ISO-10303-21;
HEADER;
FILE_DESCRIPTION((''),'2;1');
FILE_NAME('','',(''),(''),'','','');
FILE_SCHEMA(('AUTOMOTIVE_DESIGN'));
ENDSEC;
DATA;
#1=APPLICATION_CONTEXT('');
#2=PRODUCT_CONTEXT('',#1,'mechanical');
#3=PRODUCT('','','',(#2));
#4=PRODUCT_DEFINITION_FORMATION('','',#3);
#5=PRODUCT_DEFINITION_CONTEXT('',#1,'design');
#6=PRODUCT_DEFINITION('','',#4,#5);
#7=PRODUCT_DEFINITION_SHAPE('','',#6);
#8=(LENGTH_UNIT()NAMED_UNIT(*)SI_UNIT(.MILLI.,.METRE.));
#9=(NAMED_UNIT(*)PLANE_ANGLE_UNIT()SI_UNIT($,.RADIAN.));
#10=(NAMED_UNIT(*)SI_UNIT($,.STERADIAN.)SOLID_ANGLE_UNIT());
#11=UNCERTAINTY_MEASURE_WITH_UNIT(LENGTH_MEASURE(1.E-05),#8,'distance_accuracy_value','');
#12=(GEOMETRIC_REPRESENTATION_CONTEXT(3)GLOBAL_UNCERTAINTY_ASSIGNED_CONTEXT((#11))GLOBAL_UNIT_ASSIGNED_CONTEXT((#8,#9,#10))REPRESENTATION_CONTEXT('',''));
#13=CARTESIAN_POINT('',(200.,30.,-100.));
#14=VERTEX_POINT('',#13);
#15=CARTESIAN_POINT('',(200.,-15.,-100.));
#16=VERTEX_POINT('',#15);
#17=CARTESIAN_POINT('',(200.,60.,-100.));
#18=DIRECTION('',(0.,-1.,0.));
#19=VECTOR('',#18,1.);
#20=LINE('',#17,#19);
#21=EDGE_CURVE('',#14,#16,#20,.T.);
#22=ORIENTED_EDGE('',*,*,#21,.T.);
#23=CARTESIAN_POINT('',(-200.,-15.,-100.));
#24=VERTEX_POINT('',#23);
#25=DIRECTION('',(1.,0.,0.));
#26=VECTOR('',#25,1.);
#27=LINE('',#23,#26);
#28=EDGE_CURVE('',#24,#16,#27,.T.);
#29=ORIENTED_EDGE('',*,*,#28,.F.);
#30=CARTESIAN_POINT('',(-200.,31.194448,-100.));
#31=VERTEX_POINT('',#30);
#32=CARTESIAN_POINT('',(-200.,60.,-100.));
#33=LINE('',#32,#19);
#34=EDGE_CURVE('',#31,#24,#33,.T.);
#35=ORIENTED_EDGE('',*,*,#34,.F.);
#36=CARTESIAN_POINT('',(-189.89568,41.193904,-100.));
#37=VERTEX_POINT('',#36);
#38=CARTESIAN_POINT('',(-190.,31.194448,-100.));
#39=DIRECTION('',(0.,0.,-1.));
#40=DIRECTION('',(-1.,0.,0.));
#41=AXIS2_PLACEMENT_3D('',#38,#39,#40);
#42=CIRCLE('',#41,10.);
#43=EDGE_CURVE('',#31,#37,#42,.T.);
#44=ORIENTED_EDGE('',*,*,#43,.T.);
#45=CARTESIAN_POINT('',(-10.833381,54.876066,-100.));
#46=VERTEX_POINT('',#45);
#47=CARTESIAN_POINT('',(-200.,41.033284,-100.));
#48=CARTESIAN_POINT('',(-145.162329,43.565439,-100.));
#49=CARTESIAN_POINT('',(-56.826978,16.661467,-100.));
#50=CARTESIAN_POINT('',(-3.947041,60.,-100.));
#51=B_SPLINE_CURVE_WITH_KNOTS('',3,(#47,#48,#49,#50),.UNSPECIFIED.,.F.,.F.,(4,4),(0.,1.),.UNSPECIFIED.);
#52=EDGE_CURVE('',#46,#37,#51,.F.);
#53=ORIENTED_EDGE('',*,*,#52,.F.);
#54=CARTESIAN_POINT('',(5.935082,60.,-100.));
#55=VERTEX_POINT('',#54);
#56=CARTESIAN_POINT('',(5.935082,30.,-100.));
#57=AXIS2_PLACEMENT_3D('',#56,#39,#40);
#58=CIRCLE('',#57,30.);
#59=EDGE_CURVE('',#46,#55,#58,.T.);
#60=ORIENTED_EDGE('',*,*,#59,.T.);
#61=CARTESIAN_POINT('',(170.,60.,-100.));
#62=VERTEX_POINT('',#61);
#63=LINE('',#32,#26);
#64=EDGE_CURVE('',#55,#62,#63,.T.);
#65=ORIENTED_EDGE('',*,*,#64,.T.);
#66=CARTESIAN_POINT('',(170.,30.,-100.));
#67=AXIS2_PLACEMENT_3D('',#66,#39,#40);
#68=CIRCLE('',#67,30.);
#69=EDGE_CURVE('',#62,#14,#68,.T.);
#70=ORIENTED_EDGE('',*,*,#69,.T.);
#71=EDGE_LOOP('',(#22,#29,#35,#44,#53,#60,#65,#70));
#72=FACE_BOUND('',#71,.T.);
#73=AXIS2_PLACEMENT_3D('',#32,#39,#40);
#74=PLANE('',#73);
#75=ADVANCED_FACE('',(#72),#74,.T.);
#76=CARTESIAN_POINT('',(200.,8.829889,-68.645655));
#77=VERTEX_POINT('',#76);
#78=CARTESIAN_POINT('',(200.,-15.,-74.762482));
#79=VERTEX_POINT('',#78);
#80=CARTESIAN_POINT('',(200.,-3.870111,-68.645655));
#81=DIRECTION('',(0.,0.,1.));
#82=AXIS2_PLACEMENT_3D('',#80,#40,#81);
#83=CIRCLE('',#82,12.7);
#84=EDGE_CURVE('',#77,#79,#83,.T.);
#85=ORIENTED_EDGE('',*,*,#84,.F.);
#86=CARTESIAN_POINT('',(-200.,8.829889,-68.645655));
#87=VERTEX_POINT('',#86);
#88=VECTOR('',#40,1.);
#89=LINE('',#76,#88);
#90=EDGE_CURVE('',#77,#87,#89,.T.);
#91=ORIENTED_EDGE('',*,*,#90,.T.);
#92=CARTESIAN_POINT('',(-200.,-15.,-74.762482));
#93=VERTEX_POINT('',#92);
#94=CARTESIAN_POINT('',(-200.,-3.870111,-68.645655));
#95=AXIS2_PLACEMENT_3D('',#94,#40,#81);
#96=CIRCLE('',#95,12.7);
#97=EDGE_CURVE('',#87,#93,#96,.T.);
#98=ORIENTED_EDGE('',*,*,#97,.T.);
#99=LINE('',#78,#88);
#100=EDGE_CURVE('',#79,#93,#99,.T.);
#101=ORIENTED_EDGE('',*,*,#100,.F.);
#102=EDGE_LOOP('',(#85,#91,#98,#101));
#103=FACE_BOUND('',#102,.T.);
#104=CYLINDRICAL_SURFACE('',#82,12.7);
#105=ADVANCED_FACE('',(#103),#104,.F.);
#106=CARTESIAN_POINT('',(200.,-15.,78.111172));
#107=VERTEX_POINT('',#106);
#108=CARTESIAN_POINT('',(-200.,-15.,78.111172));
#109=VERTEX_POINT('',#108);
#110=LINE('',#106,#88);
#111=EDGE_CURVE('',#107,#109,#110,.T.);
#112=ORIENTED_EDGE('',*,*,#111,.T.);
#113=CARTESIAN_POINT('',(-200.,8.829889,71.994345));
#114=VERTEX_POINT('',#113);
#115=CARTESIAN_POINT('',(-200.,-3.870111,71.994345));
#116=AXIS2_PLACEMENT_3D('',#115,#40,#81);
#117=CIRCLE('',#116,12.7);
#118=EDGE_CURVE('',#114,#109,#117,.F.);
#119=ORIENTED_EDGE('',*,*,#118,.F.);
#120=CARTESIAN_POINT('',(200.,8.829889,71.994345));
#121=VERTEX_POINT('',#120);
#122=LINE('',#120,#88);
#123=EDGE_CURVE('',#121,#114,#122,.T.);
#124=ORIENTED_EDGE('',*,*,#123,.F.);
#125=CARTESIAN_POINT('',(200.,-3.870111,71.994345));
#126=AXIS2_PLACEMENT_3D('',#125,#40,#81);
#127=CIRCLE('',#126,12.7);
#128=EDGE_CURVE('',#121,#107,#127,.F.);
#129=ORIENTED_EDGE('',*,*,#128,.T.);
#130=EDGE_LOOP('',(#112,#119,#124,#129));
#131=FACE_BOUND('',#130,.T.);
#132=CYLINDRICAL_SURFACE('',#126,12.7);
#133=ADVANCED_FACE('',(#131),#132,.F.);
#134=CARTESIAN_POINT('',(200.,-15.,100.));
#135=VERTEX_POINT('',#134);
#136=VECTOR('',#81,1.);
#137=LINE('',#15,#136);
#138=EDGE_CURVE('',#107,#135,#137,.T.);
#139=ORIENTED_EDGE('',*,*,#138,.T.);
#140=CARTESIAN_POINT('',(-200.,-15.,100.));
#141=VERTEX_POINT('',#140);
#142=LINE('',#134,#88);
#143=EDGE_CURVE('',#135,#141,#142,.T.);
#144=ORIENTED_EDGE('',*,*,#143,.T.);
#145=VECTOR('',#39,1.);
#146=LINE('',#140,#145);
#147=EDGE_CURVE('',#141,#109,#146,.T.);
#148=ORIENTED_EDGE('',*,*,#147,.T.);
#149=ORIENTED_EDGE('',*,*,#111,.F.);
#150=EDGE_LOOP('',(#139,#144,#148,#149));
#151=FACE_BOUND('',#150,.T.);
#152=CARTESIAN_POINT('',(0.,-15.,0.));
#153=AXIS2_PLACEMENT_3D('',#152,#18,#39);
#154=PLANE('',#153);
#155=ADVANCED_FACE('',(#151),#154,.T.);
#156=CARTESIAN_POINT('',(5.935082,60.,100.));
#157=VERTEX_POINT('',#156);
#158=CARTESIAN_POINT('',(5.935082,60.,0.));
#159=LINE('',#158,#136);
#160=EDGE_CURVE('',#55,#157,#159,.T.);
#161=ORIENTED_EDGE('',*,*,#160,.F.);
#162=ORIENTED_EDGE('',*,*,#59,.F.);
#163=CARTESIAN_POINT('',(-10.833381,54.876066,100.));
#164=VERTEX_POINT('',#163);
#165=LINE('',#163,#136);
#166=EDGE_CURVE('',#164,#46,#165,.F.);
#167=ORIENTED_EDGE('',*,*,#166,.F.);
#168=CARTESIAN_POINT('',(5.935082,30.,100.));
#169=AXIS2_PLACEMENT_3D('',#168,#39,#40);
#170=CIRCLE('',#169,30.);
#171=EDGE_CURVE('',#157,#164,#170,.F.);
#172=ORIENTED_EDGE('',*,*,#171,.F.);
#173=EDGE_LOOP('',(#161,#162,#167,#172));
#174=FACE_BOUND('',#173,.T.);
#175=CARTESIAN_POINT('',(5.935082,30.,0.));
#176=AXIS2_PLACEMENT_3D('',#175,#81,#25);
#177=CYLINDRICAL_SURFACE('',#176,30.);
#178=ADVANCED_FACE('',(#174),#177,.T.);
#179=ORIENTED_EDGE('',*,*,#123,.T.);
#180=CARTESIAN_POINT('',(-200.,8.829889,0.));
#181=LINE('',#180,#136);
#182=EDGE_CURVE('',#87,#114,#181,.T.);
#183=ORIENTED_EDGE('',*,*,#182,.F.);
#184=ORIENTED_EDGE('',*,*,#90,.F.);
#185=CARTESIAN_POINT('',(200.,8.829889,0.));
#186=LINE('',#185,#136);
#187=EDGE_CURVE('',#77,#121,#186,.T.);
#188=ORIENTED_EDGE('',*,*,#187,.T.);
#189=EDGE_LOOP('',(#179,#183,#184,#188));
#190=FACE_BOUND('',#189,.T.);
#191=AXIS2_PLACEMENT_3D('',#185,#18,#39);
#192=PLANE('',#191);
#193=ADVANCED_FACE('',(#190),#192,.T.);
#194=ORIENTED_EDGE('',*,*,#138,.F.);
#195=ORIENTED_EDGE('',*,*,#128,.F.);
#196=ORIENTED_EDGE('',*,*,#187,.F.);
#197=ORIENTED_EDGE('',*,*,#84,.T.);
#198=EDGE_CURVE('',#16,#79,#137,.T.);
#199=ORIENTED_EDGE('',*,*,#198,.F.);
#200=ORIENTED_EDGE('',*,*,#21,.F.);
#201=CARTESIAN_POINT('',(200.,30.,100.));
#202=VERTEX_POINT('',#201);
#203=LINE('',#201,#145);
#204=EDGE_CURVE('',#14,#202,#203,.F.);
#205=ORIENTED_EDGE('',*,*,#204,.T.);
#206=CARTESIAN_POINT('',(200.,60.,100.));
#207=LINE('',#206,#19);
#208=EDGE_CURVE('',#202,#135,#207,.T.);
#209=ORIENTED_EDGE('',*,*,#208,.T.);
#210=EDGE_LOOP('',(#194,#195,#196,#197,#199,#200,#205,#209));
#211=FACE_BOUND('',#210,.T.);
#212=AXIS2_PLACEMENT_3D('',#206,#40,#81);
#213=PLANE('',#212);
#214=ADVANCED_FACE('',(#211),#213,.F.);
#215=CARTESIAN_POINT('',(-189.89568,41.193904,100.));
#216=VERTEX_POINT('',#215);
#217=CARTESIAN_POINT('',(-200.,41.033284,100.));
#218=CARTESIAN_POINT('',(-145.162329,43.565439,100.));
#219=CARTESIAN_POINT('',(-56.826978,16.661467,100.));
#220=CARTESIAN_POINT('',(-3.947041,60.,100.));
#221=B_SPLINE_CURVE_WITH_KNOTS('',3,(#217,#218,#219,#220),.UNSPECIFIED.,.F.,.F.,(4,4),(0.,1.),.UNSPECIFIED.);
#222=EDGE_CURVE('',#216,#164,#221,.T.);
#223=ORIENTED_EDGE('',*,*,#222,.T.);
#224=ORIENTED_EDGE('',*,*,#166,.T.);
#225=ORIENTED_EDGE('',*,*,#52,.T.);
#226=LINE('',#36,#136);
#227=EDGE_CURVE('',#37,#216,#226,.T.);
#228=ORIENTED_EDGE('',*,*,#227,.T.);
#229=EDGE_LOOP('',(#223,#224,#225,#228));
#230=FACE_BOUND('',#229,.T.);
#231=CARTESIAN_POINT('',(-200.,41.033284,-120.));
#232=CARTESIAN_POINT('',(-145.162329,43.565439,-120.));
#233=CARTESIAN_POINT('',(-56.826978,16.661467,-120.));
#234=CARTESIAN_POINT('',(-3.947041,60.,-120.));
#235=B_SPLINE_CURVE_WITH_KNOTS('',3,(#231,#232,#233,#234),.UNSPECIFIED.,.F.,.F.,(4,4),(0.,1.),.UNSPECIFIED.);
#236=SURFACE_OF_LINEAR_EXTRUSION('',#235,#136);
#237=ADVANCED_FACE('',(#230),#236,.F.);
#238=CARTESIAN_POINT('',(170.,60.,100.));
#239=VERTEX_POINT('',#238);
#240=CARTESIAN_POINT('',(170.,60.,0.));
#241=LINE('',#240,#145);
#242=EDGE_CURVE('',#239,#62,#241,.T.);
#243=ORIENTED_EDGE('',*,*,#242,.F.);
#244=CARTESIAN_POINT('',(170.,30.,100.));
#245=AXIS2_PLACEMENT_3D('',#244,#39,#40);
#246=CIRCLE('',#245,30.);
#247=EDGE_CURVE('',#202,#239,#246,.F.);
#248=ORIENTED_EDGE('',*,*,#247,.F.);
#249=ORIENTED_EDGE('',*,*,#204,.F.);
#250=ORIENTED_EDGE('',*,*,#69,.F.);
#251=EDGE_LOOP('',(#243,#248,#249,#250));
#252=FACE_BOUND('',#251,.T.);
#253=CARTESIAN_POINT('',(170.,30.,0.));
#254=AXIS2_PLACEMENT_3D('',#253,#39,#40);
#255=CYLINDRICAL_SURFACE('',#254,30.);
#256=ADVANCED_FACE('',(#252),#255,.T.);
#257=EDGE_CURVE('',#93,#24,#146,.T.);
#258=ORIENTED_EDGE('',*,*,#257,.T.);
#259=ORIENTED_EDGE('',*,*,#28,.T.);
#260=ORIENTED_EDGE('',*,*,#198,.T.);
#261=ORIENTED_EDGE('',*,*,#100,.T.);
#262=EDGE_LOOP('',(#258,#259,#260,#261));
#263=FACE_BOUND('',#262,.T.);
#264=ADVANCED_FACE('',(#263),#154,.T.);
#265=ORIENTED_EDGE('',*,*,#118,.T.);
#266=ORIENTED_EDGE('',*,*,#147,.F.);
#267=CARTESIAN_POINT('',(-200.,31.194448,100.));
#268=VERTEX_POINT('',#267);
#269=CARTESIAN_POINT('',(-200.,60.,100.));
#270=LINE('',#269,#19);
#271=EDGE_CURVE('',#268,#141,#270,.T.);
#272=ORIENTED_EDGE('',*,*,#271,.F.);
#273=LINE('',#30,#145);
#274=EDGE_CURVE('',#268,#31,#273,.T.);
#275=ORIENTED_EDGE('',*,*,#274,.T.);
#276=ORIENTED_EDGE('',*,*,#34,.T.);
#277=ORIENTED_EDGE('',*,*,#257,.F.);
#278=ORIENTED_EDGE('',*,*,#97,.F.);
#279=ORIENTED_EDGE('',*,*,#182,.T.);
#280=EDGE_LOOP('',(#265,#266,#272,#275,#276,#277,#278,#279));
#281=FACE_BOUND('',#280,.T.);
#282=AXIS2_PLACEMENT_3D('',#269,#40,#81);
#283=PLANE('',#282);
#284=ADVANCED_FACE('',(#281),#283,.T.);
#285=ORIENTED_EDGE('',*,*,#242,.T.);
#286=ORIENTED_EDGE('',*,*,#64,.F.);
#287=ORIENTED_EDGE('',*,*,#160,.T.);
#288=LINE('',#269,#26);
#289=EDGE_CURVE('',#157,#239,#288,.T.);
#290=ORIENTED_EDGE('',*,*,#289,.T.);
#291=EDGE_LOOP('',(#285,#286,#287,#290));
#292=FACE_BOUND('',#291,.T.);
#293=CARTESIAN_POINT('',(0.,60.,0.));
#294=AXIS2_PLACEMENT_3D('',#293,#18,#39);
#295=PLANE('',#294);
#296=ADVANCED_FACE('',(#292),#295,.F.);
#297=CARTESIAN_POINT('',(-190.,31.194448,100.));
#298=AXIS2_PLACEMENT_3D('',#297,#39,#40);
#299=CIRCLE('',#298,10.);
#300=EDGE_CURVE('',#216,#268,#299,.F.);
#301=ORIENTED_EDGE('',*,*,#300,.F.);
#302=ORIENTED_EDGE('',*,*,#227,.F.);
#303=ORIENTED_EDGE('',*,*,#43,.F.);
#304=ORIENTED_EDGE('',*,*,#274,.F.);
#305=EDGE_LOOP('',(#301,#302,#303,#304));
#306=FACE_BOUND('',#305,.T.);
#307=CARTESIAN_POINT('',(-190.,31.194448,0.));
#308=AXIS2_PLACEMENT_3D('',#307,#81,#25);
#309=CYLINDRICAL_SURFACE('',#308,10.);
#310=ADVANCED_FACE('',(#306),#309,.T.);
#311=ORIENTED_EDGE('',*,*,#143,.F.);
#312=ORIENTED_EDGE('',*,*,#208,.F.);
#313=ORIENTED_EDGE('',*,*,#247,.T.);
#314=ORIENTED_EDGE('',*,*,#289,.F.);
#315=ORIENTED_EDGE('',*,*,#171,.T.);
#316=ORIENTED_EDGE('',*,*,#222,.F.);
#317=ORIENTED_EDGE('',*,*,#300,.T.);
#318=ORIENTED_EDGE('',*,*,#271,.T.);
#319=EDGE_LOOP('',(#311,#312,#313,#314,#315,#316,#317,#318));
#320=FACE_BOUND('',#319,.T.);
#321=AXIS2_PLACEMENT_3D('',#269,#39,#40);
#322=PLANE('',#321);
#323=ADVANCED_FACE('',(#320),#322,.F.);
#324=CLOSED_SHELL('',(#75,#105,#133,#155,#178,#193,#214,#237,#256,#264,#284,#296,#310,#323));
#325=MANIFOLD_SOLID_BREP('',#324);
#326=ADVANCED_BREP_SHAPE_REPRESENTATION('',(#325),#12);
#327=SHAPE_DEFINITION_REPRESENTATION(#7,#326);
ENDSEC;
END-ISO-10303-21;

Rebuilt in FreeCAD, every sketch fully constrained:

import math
import FreeCAD as App
import Part
import Sketcher


def edges_at(feature, points):
    """Names of the edges that pass closest to the given points."""
    edges = feature.Shape.Edges
    near = lambda p: min(range(len(edges)), key=lambda i: edges[i].distToShape(Part.Vertex(*p))[0])
    return sorted({f"Edge{near(p) + 1}" for p in points})

doc = App.newDocument("Part")
body = doc.addObject("PartDesign::Body", "Body")

sketch1 = body.newObject("Sketcher::SketchObject", "Sketch")
sketch1.AttachmentSupport = (doc.getObject("XZ_Plane"), [""])
sketch1.MapMode = "FlatFace"
sketch1.addGeometry(Part.LineSegment(App.Vector(-200, -100, 0), App.Vector(-200, 100, 0)), False)
sketch1.addGeometry(Part.LineSegment(App.Vector(-200, 100, 0), App.Vector(200, 100, 0)), False)
sketch1.addGeometry(Part.LineSegment(App.Vector(200, 100, 0), App.Vector(200, -100, 0)), False)
sketch1.addGeometry(Part.LineSegment(App.Vector(200, -100, 0), App.Vector(-200, -100, 0)), False)
sketch1.addConstraint(Sketcher.Constraint("Coincident", 0, 2, 1, 1))
sketch1.addConstraint(Sketcher.Constraint("Coincident", 1, 2, 2, 1))
sketch1.addConstraint(Sketcher.Constraint("Coincident", 2, 2, 3, 1))
sketch1.addConstraint(Sketcher.Constraint("Coincident", 3, 2, 0, 1))
sketch1.addConstraint(Sketcher.Constraint("Vertical", 0))
sketch1.addConstraint(Sketcher.Constraint("Horizontal", 1))
sketch1.addConstraint(Sketcher.Constraint("Vertical", 2))
sketch1.addConstraint(Sketcher.Constraint("Horizontal", 3))
sketch1.addConstraint(Sketcher.Constraint("Symmetric", 0, 2, 2, 2, -1, 1))
sketch1.addConstraint(Sketcher.Constraint("DistanceX", 1, 1, 1, 2, 400.0))
sketch1.addConstraint(Sketcher.Constraint("DistanceY", 0, 1, 0, 2, 200.0))
pad1 = body.newObject("PartDesign::Pad", "Pad")
pad1.Profile = sketch1
pad1.Length = 60
pad1.Reversed = True

sketch2 = body.newObject("Sketcher::SketchObject", "Sketch001")
sketch2.AttachmentSupport = (doc.getObject("XY_Plane"), [""])
sketch2.MapMode = "FlatFace"
sketch2.AttachmentOffset = App.Placement(App.Vector(0, 0, 100), App.Rotation())
sketch2.addGeometry(Part.LineSegment(App.Vector(-200, 60, 0), App.Vector(-200, 41.033284, 0)), False)
sketch2.addGeometry(Part.BSplineCurve([App.Vector(-200, 41.033284, 0), App.Vector(-145.162329, 43.565439, 0), App.Vector(-56.826978, 16.661467, 0), App.Vector(-3.947041, 60, 0)], [4, 4], [0, 1], False, 3, [1, 1, 1, 1], False), False)
sketch2.addGeometry(Part.LineSegment(App.Vector(-3.947041, 60, 0), App.Vector(-200, 60, 0)), False)
sketch2.addConstraint(Sketcher.Constraint("Block", 1))
sketch2.addConstraint(Sketcher.Constraint("Coincident", 0, 2, 1, 1))
sketch2.addConstraint(Sketcher.Constraint("Coincident", 1, 2, 2, 1))
sketch2.addConstraint(Sketcher.Constraint("Coincident", 2, 2, 0, 1))
sketch2.addConstraint(Sketcher.Constraint("Vertical", 0))
sketch2.addConstraint(Sketcher.Constraint("Horizontal", 2))
pocket1 = body.newObject("PartDesign::Pocket", "Pocket")
pocket1.Profile = sketch2
pocket1.Length = 220
doc.recompute()

fillet = body.newObject("PartDesign::Fillet", "Fillet")
fillet.Base = (pocket1, edges_at(pocket1, [(-3.947, 60, 0), (200, 60, 0)]))
fillet.Radius = 30
doc.recompute()

fillet2 = body.newObject("PartDesign::Fillet", "Fillet001")
fillet2.Base = (fillet, edges_at(fillet, [(-200, 41.033, 0)]))
fillet2.Radius = 10

sketch3 = body.newObject("Sketcher::SketchObject", "Sketch002")
sketch3.AttachmentSupport = (doc.getObject("XZ_Plane"), [""])
sketch3.MapMode = "FlatFace"
sketch3.addGeometry(Part.LineSegment(App.Vector(-200, 100, 0), App.Vector(-200, -100, 0)), False)
sketch3.addGeometry(Part.LineSegment(App.Vector(-200, -100, 0), App.Vector(200, -100, 0)), False)
sketch3.addGeometry(Part.LineSegment(App.Vector(200, -100, 0), App.Vector(200, 100, 0)), False)
sketch3.addGeometry(Part.LineSegment(App.Vector(200, 100, 0), App.Vector(-200, 100, 0)), False)
sketch3.addConstraint(Sketcher.Constraint("Coincident", 0, 2, 1, 1))
sketch3.addConstraint(Sketcher.Constraint("Coincident", 1, 2, 2, 1))
sketch3.addConstraint(Sketcher.Constraint("Coincident", 2, 2, 3, 1))
sketch3.addConstraint(Sketcher.Constraint("Coincident", 3, 2, 0, 1))
sketch3.addConstraint(Sketcher.Constraint("Vertical", 0))
sketch3.addConstraint(Sketcher.Constraint("Horizontal", 1))
sketch3.addConstraint(Sketcher.Constraint("Vertical", 2))
sketch3.addConstraint(Sketcher.Constraint("Horizontal", 3))
sketch3.addConstraint(Sketcher.Constraint("Symmetric", 0, 2, 2, 2, -1, 1))
sketch3.addConstraint(Sketcher.Constraint("DistanceX", 1, 1, 1, 2, 400.0))
sketch3.addConstraint(Sketcher.Constraint("DistanceY", 0, 2, 0, 1, 200.0))
pad2 = body.newObject("PartDesign::Pad", "Pad001")
pad2.Profile = sketch3
pad2.Length = 15

sketch4 = body.newObject("Sketcher::SketchObject", "Sketch003")
sketch4.AttachmentSupport = (doc.getObject("YZ_Plane"), [""])
sketch4.MapMode = "FlatFace"
sketch4.AttachmentOffset = App.Placement(App.Vector(0, 0, -200), App.Rotation())
sketch4.addGeometry(Part.LineSegment(App.Vector(-15, -75, 0), App.Vector(-15, 78, 0)), False)
sketch4.addGeometry(Part.ArcOfCircle(Part.Circle(App.Vector(-4, 72, 0), App.Vector(0, 0, 1), 13), math.radians(0), math.radians(151)), False)
sketch4.addGeometry(Part.LineSegment(App.Vector(9, 72, 0), App.Vector(9, -69, 0)), False)
sketch4.addGeometry(Part.ArcOfCircle(Part.Circle(App.Vector(-4, -69, 0), App.Vector(0, 0, 1), 13), math.radians(-151), math.radians(0)), False)
sketch4.addConstraint(Sketcher.Constraint("Coincident", 0, 2, 1, 2))
sketch4.addConstraint(Sketcher.Constraint("Tangent", 1, 1, 2, 1))
sketch4.addConstraint(Sketcher.Constraint("Tangent", 2, 2, 3, 2))
sketch4.addConstraint(Sketcher.Constraint("Coincident", 3, 1, 0, 1))
sketch4.addConstraint(Sketcher.Constraint("Vertical", 0))
sketch4.addConstraint(Sketcher.Constraint("Vertical", 2))
sketch4.addConstraint(Sketcher.Constraint("Equal", 1, 3))
sketch4.addConstraint(Sketcher.Constraint("Radius", 1, 12.7))
sketch4.addConstraint(Sketcher.Constraint("DistanceX", 0, 2, -1, 1, 15.0))
sketch4.addConstraint(Sketcher.Constraint("DistanceY", 2, 2, 2, 1, 140.64))
sketch4.addConstraint(Sketcher.Constraint("DistanceY", 0, 1, 0, 2, 152.873654))
sketch4.addConstraint(Sketcher.Constraint("DistanceY", -1, 1, 1, 3, 71.994345))
pocket2 = body.newObject("PartDesign::Pocket", "Pocket001")
pocket2.Profile = sketch4
pocket2.Type = "ThroughAll"
pocket2.Reversed = True

doc.recompute()
